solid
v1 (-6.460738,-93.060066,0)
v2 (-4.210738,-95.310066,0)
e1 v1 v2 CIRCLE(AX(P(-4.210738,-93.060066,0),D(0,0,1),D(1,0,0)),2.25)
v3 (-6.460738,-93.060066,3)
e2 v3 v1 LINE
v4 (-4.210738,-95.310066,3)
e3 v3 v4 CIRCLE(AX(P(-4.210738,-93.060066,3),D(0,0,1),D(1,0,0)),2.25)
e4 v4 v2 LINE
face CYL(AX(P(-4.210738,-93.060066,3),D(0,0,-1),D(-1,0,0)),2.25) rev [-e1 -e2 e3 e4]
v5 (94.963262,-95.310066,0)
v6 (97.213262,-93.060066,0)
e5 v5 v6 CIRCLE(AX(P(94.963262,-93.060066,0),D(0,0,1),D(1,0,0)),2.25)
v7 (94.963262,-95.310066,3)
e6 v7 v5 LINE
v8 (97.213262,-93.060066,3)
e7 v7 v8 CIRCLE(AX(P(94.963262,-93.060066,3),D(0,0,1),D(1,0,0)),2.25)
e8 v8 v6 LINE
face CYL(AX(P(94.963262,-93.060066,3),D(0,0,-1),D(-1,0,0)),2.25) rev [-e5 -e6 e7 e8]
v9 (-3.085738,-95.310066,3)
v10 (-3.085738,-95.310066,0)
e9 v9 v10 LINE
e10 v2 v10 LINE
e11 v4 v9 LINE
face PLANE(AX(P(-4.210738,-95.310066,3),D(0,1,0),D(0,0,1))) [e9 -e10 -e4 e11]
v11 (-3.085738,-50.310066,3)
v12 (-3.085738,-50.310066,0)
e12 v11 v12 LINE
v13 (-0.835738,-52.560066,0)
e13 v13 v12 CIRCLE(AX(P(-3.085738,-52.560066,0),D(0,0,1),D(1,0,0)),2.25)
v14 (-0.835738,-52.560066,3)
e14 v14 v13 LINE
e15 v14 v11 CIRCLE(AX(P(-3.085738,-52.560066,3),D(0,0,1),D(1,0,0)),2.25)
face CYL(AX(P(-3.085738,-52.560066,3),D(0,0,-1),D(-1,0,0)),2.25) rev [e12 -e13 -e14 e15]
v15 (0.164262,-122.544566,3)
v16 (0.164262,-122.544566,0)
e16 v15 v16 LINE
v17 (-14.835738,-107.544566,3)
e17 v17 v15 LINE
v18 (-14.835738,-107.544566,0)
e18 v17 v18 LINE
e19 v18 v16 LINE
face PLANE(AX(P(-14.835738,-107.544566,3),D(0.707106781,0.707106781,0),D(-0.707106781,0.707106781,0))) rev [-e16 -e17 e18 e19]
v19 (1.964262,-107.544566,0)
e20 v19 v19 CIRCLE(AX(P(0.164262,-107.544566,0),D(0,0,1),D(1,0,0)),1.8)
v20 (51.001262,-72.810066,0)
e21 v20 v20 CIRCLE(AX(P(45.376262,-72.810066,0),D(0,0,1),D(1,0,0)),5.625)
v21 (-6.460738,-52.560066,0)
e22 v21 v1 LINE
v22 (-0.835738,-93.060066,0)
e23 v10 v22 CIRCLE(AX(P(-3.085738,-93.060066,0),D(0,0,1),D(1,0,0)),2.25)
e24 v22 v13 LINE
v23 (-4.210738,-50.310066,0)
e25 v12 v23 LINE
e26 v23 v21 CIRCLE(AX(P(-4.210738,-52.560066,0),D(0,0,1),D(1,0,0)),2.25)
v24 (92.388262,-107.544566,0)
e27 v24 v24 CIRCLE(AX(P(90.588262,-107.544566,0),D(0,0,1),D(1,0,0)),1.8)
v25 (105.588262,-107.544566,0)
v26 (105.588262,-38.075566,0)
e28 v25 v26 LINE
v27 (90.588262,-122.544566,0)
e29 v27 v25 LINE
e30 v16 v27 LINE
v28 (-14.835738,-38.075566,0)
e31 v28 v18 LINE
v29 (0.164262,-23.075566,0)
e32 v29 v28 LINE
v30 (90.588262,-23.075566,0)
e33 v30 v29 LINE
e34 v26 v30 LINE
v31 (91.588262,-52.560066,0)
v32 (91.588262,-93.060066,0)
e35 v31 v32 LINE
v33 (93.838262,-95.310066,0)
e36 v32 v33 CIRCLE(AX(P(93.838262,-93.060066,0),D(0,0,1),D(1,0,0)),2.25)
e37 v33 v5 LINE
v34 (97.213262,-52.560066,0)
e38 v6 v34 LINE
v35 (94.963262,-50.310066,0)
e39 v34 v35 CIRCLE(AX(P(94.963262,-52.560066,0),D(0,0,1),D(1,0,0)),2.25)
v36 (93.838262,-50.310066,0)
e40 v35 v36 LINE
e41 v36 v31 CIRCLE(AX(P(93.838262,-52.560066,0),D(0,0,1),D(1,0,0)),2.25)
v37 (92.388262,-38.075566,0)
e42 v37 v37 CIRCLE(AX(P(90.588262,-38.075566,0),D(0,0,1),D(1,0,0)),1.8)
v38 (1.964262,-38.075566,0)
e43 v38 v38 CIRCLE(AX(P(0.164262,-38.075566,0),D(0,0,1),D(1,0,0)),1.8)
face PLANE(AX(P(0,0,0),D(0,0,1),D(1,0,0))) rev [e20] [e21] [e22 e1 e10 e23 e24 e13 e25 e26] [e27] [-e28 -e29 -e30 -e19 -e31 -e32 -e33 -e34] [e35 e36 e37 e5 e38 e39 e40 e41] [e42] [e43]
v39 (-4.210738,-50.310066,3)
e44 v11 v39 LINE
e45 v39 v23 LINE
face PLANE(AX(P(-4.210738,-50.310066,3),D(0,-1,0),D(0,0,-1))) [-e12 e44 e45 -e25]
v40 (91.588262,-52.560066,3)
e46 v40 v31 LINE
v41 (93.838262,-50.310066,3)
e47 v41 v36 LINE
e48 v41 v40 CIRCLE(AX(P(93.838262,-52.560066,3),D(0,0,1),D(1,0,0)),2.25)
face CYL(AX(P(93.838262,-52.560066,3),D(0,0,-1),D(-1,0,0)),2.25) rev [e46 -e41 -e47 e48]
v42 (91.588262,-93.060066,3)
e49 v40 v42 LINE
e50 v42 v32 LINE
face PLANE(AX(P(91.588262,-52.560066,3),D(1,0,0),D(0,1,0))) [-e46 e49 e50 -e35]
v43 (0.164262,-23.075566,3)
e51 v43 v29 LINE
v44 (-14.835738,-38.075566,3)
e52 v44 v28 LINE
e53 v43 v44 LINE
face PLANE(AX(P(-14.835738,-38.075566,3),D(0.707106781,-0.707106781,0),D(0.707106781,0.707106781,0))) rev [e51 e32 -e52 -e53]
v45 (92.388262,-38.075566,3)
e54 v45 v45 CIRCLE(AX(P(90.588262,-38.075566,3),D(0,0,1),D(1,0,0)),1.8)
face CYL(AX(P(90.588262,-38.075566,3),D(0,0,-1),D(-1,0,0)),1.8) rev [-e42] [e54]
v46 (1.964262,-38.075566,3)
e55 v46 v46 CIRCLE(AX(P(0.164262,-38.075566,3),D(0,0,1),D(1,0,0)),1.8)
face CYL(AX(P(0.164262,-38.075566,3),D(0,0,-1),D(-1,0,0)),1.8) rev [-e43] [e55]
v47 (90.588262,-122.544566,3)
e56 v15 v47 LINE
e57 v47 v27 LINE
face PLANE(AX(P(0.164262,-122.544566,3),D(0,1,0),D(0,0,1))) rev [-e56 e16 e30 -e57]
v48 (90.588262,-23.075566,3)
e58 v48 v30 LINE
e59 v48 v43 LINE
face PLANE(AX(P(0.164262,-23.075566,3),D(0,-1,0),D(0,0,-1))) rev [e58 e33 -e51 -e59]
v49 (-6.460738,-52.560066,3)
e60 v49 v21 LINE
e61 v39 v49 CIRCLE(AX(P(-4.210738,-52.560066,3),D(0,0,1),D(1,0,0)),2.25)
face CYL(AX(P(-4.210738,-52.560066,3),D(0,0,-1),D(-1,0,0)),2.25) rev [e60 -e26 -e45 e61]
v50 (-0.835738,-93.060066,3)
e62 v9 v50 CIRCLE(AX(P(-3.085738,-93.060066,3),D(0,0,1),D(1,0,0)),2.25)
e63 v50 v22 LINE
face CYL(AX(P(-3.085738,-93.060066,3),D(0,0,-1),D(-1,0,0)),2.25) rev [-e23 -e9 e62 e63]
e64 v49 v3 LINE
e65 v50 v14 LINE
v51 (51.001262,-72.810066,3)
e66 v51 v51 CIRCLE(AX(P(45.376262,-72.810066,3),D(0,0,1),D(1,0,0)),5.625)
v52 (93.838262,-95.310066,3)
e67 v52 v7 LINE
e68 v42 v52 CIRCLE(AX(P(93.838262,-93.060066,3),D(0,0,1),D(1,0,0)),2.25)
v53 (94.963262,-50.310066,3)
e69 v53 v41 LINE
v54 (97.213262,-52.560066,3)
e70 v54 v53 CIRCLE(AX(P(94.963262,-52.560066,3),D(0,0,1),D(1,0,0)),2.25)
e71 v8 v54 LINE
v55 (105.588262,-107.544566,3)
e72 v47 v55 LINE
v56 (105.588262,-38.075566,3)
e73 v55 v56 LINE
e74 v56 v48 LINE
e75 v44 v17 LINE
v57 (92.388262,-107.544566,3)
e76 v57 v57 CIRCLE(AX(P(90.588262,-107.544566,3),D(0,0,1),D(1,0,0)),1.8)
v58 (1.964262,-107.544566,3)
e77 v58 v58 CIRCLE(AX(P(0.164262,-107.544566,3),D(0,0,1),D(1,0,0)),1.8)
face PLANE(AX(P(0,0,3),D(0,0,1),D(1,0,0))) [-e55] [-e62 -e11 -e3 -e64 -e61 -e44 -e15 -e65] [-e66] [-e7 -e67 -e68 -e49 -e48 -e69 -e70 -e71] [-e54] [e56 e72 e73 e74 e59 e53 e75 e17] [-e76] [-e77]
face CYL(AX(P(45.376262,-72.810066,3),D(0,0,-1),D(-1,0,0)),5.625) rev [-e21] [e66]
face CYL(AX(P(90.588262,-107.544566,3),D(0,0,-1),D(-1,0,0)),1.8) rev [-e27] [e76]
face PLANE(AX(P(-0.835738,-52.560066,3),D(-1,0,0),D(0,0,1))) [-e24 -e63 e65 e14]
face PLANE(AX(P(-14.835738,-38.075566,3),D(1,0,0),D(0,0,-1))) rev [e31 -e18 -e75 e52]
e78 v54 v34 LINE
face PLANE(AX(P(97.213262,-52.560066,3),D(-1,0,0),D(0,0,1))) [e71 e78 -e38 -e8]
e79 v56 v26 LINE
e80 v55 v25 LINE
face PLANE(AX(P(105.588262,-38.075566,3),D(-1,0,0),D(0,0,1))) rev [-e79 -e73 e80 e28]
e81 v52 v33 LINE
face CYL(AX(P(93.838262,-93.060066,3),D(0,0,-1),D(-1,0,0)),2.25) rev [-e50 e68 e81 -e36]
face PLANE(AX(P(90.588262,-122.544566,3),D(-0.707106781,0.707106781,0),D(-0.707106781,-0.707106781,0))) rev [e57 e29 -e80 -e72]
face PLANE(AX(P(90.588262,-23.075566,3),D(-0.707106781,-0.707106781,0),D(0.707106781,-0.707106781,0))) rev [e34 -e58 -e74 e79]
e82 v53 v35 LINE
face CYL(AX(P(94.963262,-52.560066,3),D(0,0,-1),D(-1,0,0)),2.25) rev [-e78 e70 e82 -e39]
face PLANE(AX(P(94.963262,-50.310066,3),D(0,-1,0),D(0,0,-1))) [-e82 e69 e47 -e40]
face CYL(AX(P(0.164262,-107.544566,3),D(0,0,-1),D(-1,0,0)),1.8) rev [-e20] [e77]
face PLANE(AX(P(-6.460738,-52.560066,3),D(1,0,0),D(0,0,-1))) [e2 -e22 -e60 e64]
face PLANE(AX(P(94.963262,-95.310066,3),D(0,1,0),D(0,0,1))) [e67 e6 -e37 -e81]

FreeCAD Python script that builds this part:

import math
import FreeCAD as App
import Part
import Sketcher
from FreeCAD import Vector
Q = App.Units.Quantity


def add_polygon(sketch, points):
    """Adds a closed chain of lines whose ends are joined by coincident constraints."""
    first, n = sketch.GeometryCount, len(points)
    for a, b in zip(points, points[1:] + points[:1]):
        sketch.addGeometry(Part.LineSegment(App.Vector(*a, 0), App.Vector(*b, 0)), False)
    for i in range(n):
        sketch.addConstraint(Sketcher.Constraint("Coincident", first + i, 2, first + (i + 1) % n, 1))

doc = App.newDocument("Part")
body = doc.addObject("PartDesign::Body", "Body")

sketch1 = body.newObject("Sketcher::SketchObject", "Sketch")
sketch1.AttachmentSupport = (doc.getObject("XY_Plane"), [""])
sketch1.MapMode = "FlatFace"
add_polygon(sketch1, [(0.2, -23.1), (-14.8, -38.1), (-14.8, -107.5), (0.2, -122.5), (90.6, -122.5), (105.6, -107.5), (105.6, -38.1), (90.6, -23.1)])
sketch1.addGeometry(Part.Circle(Vector(90.6, -107.5, 0), Vector(0, 0, 1), 1.8), False)
sketch1.addGeometry(Part.Circle(Vector(0.2, -107.5, 0), Vector(0, 0, 1), 1.8), False)
sketch1.addGeometry(Part.ArcOfCircle(Part.Circle(Vector(95, -52.6, 0), Vector(0, 0, 1), 2.2), math.radians(0), math.radians(90)), False)
sketch1.addGeometry(Part.LineSegment(Vector(97.2, -52.6, 0), Vector(97.2, -93.1, 0)), False)
sketch1.addGeometry(Part.ArcOfCircle(Part.Circle(Vector(95, -93.1, 0), Vector(0, 0, 1), 2.3), math.radians(-90), math.radians(0)), False)
sketch1.addGeometry(Part.LineSegment(Vector(95, -95.3, 0), Vector(93.8, -95.3, 0)), False)
sketch1.addGeometry(Part.ArcOfCircle(Part.Circle(Vector(93.8, -93.1, 0), Vector(0, 0, 1), 2.3), math.radians(-180), math.radians(-90)), False)
sketch1.addGeometry(Part.LineSegment(Vector(91.6, -93.1, 0), Vector(91.6, -52.6, 0)), False)
sketch1.addGeometry(Part.ArcOfCircle(Part.Circle(Vector(93.8, -52.6, 0), Vector(0, 0, 1), 2.2), math.radians(90), math.radians(180)), False)
sketch1.addGeometry(Part.LineSegment(Vector(93.8, -50.3, 0), Vector(95, -50.3, 0)), False)
sketch1.addGeometry(Part.Circle(Vector(90.6, -38.1, 0), Vector(0, 0, 1), 1.8), False)
sketch1.addGeometry(Part.Circle(Vector(45.4, -72.8, 0), Vector(0, 0, 1), 5.6), False)
sketch1.addGeometry(Part.LineSegment(Vector(-4.2, -50.3, 0), Vector(-3.1, -50.3, 0)), False)
sketch1.addGeometry(Part.ArcOfCircle(Part.Circle(Vector(-3.1, -52.6, 0), Vector(0, 0, 1), 2.2), math.radians(0), math.radians(90)), False)
sketch1.addGeometry(Part.LineSegment(Vector(-0.8, -52.6, 0), Vector(-0.8, -93.1, 0)), False)
sketch1.addGeometry(Part.ArcOfCircle(Part.Circle(Vector(-3.1, -93.1, 0), Vector(0, 0, 1), 2.3), math.radians(-90), math.radians(0)), False)
sketch1.addGeometry(Part.LineSegment(Vector(-3.1, -95.3, 0), Vector(-4.2, -95.3, 0)), False)
sketch1.addGeometry(Part.ArcOfCircle(Part.Circle(Vector(-4.2, -93.1, 0), Vector(0, 0, 1), 2.3), math.radians(-180), math.radians(-90)), False)
sketch1.addGeometry(Part.LineSegment(Vector(-6.5, -93.1, 0), Vector(-6.5, -52.6, 0)), False)
sketch1.addGeometry(Part.ArcOfCircle(Part.Circle(Vector(-4.2, -52.6, 0), Vector(0, 0, 1), 2.2), math.radians(90), math.radians(180)), False)
sketch1.addGeometry(Part.Circle(Vector(0.2, -38.1, 0), Vector(0, 0, 1), 1.8), False)
sketch1.addConstraint([
    Sketcher.Constraint("Tangent", 10, 1, 11, 1),
    Sketcher.Constraint("Tangent", 11, 2, 12, 2),
    Sketcher.Constraint("Tangent", 12, 1, 13, 1),
    Sketcher.Constraint("Tangent", 13, 2, 14, 2),
    Sketcher.Constraint("Tangent", 14, 1, 15, 1),
    Sketcher.Constraint("Tangent", 15, 2, 16, 2),
    Sketcher.Constraint("Tangent", 16, 1, 17, 1),
    Sketcher.Constraint("Tangent", 17, 2, 10, 2),
    Sketcher.Constraint("Tangent", 20, 2, 21, 2),
    Sketcher.Constraint("Tangent", 21, 1, 22, 1),
    Sketcher.Constraint("Tangent", 22, 2, 23, 2),
    Sketcher.Constraint("Tangent", 23, 1, 24, 1),
    Sketcher.Constraint("Tangent", 24, 2, 25, 2),
    Sketcher.Constraint("Tangent", 25, 1, 26, 1),
    Sketcher.Constraint("Tangent", 26, 2, 27, 2),
    Sketcher.Constraint("Tangent", 27, 1, 20, 1),
    Sketcher.Constraint("Vertical", 1),
    Sketcher.Constraint("Horizontal", 3),
    Sketcher.Constraint("Vertical", 5),
    Sketcher.Constraint("Horizontal", 7),
    Sketcher.Constraint("Vertical", 11),
    Sketcher.Constraint("Horizontal", 13),
    Sketcher.Constraint("Vertical", 15),
    Sketcher.Constraint("Horizontal", 17),
    Sketcher.Constraint("Horizontal", 20),
    Sketcher.Constraint("Vertical", 22),
    Sketcher.Constraint("Horizontal", 24),
    Sketcher.Constraint("Vertical", 26),
    Sketcher.Constraint("Equal", 8, 9),
    Sketcher.Constraint("Equal", 10, 12),
    Sketcher.Constraint("Equal", 12, 14),
    Sketcher.Constraint("Equal", 14, 16),
    Sketcher.Constraint("Equal", 9, 18),
    Sketcher.Constraint("Equal", 16, 21),
    Sketcher.Constraint("Equal", 21, 23),
    Sketcher.Constraint("Equal", 23, 25),
    Sketcher.Constraint("Equal", 25, 27),
    Sketcher.Constraint("Equal", 18, 28),
    Sketcher.Constraint("Perpendicular", 0, 2),
    Sketcher.Constraint("Perpendicular", 2, 4),
    Sketcher.Constraint("Perpendicular", 4, 6),
    Sketcher.Constraint("Horizontal", 8, 3, 9, 3),
    Sketcher.Constraint("Horizontal", 16, 3, 21, 3),
    Sketcher.Constraint("Horizontal", 14, 3, 23, 3),
    Sketcher.Constraint("Horizontal", 18, 3, 28, 3),
    Sketcher.Constraint("Horizontal", 28, 3, 0, 2),
    Sketcher.Constraint("Horizontal", 9, 3, 1, 2),
    Sketcher.Constraint("Horizontal", 1, 2, 4, 2),
    Sketcher.Constraint("Horizontal", 0, 2, 5, 2),
    Sketcher.Constraint("Vertical", 8, 3, 18, 3),
    Sketcher.Constraint("Vertical", 9, 3, 28, 3),
    Sketcher.Constraint("Vertical", 28, 3, 2, 2),
    Sketcher.Constraint("Vertical", 18, 3, 3, 2),
    Sketcher.Constraint("Vertical", 3, 2, 6, 2),
    Sketcher.Constraint("Vertical", 2, 2, 7, 2),
    Sketcher.Constraint("Equal", 17, 20),
    Sketcher.Constraint("Diameter", 8, Q("3.6 mm")),
    Sketcher.Constraint("Diameter", 19, Q("11.25 mm")),
    Sketcher.Constraint("Radius", 10, Q("2.25 mm")),
    Sketcher.Constraint("DistanceY", 11, 2, 11, 1, Q("40.5 mm")),
    Sketcher.Constraint("DistanceX", 0, 2, 28, 3, Q("15 mm")),
    Sketcher.Constraint("DistanceX", 18, 3, 15, 2, Q("1 mm")),
    Sketcher.Constraint("DistanceX", 21, 1, 28, 3, Q("1 mm")),
    Sketcher.Constraint("DistanceX", 3, 1, 3, 2, Q("90.424 mm")),
    Sketcher.Constraint("DistanceX", 13, 2, 13, 1, Q("1.125 mm")),
    Sketcher.Constraint("DistanceY", 1, 2, 1, 1, Q("69.469 mm")),
    Sketcher.Constraint("DistanceY", 19, 3, 16, 3, Q("20.25 mm")),
    Sketcher.Constraint("DistanceX", 19, 3, 16, 3, Q("48.462 mm")),
    Sketcher.Constraint("DistanceY", 8, 3, 10, 3, Q("54.9845 mm")),
    Sketcher.Constraint("DistanceX", -1, 1, 8, 3, Q("90.588262 mm")),
    Sketcher.Constraint("DistanceY", 8, 3, -1, 1, Q("107.544566 mm")),
])
pad1 = body.newObject("PartDesign::Pad", "Pad")
pad1.Profile = sketch1
pad1.Length = 3

doc.recompute()
